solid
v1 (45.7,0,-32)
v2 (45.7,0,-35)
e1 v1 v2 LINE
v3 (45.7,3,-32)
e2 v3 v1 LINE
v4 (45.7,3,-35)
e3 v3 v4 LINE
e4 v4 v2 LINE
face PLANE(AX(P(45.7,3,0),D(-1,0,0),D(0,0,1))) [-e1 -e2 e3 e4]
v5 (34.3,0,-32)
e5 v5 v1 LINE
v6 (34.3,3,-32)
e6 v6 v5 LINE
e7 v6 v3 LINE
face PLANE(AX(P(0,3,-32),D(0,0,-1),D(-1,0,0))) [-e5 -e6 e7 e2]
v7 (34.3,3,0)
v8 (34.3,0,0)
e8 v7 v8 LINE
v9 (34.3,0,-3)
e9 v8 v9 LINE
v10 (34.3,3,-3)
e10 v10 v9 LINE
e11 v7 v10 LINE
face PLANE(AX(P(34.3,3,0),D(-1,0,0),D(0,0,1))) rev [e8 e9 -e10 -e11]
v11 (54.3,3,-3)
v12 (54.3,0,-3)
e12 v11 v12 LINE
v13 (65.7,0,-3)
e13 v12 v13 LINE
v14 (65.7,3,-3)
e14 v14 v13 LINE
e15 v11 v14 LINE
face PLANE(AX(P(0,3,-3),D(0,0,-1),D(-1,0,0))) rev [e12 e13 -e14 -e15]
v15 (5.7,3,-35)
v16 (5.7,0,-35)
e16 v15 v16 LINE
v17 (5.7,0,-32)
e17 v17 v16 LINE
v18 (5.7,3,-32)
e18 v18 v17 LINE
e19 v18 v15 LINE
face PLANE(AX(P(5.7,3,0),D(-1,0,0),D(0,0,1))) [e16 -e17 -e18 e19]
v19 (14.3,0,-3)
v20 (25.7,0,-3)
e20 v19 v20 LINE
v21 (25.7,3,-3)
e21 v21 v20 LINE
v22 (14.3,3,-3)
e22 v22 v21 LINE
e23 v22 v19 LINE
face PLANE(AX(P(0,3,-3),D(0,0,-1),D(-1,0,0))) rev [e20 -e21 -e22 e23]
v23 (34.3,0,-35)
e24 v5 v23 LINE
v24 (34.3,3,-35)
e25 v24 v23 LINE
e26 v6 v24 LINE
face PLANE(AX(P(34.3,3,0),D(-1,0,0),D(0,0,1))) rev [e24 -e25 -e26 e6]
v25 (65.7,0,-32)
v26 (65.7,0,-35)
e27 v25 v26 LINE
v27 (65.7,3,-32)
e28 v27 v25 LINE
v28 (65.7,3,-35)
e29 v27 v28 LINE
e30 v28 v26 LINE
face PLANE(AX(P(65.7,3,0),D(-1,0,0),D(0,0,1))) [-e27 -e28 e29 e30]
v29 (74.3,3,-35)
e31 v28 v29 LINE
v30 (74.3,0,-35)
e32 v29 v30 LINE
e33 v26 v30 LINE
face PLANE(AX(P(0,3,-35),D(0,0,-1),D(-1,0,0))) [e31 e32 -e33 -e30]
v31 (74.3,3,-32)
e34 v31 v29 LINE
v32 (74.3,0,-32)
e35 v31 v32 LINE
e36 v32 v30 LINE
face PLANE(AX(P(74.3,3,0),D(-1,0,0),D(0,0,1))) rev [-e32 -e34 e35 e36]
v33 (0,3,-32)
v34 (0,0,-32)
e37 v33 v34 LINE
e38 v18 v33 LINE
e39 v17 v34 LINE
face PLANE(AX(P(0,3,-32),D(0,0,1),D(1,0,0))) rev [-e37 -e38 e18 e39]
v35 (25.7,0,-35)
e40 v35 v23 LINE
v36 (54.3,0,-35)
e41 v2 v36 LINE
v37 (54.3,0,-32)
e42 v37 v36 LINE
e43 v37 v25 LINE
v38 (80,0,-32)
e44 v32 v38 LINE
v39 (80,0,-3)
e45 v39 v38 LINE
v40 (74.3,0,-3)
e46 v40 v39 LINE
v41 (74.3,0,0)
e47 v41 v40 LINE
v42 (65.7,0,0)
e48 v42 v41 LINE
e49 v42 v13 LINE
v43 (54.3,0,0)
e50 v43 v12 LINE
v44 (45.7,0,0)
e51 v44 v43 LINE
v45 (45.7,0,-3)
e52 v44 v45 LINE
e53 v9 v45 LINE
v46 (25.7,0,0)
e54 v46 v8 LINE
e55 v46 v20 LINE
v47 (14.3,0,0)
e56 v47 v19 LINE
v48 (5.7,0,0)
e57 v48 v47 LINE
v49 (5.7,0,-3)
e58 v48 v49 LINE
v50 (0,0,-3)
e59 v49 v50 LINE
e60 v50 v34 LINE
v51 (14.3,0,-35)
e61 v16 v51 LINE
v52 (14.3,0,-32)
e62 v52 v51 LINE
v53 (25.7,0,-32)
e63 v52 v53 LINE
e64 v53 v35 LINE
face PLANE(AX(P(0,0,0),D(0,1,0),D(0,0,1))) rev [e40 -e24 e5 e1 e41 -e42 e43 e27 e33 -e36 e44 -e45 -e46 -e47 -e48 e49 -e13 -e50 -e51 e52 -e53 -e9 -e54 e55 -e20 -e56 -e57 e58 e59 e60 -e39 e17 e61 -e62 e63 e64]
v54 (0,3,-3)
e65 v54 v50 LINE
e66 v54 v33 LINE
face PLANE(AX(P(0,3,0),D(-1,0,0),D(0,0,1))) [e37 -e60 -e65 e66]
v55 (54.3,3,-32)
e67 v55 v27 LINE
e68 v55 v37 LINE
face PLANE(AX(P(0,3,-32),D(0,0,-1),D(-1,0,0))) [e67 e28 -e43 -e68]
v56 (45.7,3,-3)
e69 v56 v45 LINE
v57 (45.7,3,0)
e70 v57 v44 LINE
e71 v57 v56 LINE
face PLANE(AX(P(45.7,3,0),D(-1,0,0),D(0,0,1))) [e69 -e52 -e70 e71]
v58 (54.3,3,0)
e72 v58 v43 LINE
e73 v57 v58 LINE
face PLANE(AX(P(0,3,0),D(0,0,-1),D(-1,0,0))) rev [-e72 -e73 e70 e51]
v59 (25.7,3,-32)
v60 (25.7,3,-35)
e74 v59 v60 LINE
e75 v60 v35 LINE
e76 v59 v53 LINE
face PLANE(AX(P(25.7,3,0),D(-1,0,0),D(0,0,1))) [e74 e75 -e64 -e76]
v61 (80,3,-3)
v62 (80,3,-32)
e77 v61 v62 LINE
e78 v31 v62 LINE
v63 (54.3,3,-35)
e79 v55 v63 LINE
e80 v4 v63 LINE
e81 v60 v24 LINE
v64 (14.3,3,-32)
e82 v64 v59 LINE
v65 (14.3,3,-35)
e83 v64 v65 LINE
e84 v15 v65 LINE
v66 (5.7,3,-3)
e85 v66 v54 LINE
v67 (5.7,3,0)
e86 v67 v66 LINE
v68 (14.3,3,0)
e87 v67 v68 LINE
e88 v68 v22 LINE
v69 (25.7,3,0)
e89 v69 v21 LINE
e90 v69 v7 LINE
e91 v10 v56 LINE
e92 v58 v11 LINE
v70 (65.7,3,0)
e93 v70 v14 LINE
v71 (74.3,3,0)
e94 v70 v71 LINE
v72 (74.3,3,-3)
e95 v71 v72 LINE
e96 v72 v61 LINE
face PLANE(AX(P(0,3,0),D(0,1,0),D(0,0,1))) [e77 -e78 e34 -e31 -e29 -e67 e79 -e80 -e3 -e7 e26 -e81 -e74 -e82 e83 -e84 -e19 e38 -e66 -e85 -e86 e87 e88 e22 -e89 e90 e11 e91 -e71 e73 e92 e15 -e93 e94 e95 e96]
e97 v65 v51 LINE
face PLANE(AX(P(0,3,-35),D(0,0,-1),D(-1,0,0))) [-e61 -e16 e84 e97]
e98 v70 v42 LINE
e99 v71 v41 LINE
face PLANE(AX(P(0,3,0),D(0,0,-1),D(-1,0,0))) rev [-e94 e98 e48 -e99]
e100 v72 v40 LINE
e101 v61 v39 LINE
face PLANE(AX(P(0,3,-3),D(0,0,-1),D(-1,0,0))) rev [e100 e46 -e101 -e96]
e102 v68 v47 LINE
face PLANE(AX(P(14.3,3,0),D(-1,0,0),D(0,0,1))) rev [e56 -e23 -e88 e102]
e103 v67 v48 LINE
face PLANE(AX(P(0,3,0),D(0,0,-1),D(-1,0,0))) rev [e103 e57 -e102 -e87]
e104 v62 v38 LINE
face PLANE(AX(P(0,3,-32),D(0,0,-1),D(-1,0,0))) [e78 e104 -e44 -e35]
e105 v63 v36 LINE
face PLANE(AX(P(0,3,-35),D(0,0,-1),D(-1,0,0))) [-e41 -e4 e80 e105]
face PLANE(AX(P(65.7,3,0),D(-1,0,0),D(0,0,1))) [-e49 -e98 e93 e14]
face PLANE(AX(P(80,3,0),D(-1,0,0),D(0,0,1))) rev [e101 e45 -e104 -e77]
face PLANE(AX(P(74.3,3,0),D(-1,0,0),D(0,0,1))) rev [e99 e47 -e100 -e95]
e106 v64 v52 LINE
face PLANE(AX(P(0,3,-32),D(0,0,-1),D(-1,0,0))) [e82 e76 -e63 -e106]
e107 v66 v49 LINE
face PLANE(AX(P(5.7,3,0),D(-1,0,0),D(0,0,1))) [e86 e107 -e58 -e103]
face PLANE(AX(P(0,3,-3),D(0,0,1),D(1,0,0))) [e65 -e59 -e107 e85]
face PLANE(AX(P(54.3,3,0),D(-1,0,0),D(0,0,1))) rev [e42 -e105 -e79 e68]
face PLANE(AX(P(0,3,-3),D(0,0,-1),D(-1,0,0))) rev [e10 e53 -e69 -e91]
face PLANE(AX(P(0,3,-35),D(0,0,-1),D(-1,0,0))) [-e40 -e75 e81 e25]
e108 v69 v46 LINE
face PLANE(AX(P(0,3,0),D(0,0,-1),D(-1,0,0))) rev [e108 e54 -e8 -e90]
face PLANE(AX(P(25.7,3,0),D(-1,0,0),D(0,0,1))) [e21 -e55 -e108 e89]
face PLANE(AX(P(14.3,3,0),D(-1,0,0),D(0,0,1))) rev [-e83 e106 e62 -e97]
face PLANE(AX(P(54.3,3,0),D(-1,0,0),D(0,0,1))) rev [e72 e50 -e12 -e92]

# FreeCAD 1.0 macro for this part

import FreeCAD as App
import Part
import Sketcher

V = App.Vector


def add_polygon(sketch, points):
    """Adds a closed chain of lines whose ends are joined by coincident constraints."""
    first, n = sketch.GeometryCount, len(points)
    for a, b in zip(points, points[1:] + points[:1]):
        sketch.addGeometry(Part.LineSegment(App.Vector(*a, 0), App.Vector(*b, 0)), False)
    for i in range(n):
        sketch.addConstraint(Sketcher.Constraint("Coincident", first + i, 2, first + (i + 1) % n, 1))

doc = App.newDocument("Part")
params = doc.addObject("Spreadsheet::Sheet", "Params")
for row, (alias, value) in enumerate([
    ("sketch1_height", "29 mm"),
    ("sketch1_height2", "3 mm"),
    ("sketch1_width", "5.7 mm"),
    ("sketch1_width2", "8.6 mm"),
    ("sketch1_width3", "11.4 mm"),
    ("pad1_length", "3 mm"),
], start=1):
    params.set(f"A{row}", alias)
    params.set(f"B{row}", "=" + value)
    params.setAlias(f"B{row}", alias)

body = doc.addObject("PartDesign::Body", "Body")

# Sketch on XZ plane
sketch1 = doc.addObject("Sketcher::SketchObject", "Sketch")
body.addObject(sketch1)
sketch1.AttachmentSupport = (doc.XZ_Plane, [""])
sketch1.MapMode = "FlatFace"
add_polygon(sketch1, [(0, -32), (0, -3), (5.7, -3), (5.7, 0), (14.3, 0), (14.3, -3), (25.7, -3), (25.7, 0), (34.3, 0), (34.3, -3), (45.7, -3), (45.7, 0), (54.3, 0), (54.3, -3), (65.7, -3), (65.7, 0), (74.3, 0), (74.3, -3), (80, -3), (80, -32), (74.3, -32), (74.3, -35), (65.7, -35), (65.7, -32), (54.3, -32), (54.3, -35), (45.7, -35), (45.7, -32), (34.3, -32), (34.3, -35), (25.7, -35), (25.7, -32), (14.3, -32), (14.3, -35), (5.7, -35), (5.7, -32)])  # lines 0-35
sketch1.addConstraint([
    Sketcher.Constraint("Vertical", 0),
    Sketcher.Constraint("Horizontal", 1),
    Sketcher.Constraint("Vertical", 2),
    Sketcher.Constraint("Horizontal", 3),
    Sketcher.Constraint("Vertical", 4),
    Sketcher.Constraint("Horizontal", 5),
    Sketcher.Constraint("Vertical", 6),
    Sketcher.Constraint("Horizontal", 7),
    Sketcher.Constraint("Vertical", 8),
    Sketcher.Constraint("Horizontal", 9),
    Sketcher.Constraint("Vertical", 10),
    Sketcher.Constraint("Horizontal", 11),
    Sketcher.Constraint("Vertical", 12),
    Sketcher.Constraint("Horizontal", 13),
    Sketcher.Constraint("Vertical", 14),
    Sketcher.Constraint("Horizontal", 15),
    Sketcher.Constraint("Vertical", 16),
    Sketcher.Constraint("Horizontal", 17),
    Sketcher.Constraint("Vertical", 18),
    Sketcher.Constraint("Horizontal", 19),
    Sketcher.Constraint("Vertical", 20),
    Sketcher.Constraint("Horizontal", 21),
    Sketcher.Constraint("Vertical", 22),
    Sketcher.Constraint("Horizontal", 23),
    Sketcher.Constraint("Vertical", 24),
    Sketcher.Constraint("Horizontal", 25),
    Sketcher.Constraint("Vertical", 26),
    Sketcher.Constraint("Horizontal", 27),
    Sketcher.Constraint("Vertical", 28),
    Sketcher.Constraint("Horizontal", 29),
    Sketcher.Constraint("Vertical", 30),
    Sketcher.Constraint("Horizontal", 31),
    Sketcher.Constraint("Vertical", 32),
    Sketcher.Constraint("Horizontal", 33),
    Sketcher.Constraint("Vertical", 34),
    Sketcher.Constraint("Horizontal", 35),
    Sketcher.Constraint("PointOnObject", 0, 2, -2),
    Sketcher.Constraint("PointOnObject", 2, 2, -1),
    Sketcher.Constraint("PointOnObject", 6, 2, -1),
    Sketcher.Constraint("PointOnObject", 10, 2, -1),
    Sketcher.Constraint("PointOnObject", 14, 2, -1),
    Sketcher.Constraint("Horizontal", 1, 2, 4, 2),
    Sketcher.Constraint("Horizontal", 5, 2, 8, 2),
    Sketcher.Constraint("Horizontal", 9, 2, 12, 2),
    Sketcher.Constraint("Horizontal", 13, 2, 16, 2),
    Sketcher.Constraint("Horizontal", 19, 2, 22, 2),
    Sketcher.Constraint("Horizontal", 21, 2, 24, 2),
    Sketcher.Constraint("Horizontal", 23, 2, 26, 2),
    Sketcher.Constraint("Horizontal", 25, 2, 28, 2),
    Sketcher.Constraint("Horizontal", 27, 2, 30, 2),
    Sketcher.Constraint("Horizontal", 29, 2, 32, 2),
    Sketcher.Constraint("Horizontal", 31, 2, 34, 2),
    Sketcher.Constraint("Vertical", 16, 2, 19, 2),
    Sketcher.Constraint("Vertical", 14, 2, 21, 2),
    Sketcher.Constraint("Vertical", 12, 2, 23, 2),
    Sketcher.Constraint("Vertical", 10, 2, 25, 2),
    Sketcher.Constraint("Vertical", 8, 2, 27, 2),
    Sketcher.Constraint("Vertical", 6, 2, 29, 2),
    Sketcher.Constraint("Vertical", 4, 2, 31, 2),
    Sketcher.Constraint("Vertical", 2, 2, 33, 2),
    Sketcher.Constraint("Equal", 3, 7),
    Sketcher.Constraint("Equal", 5, 9),
    Sketcher.Constraint("Equal", 7, 11),
    Sketcher.Constraint("Equal", 9, 13),
    Sketcher.Constraint("Equal", 11, 15),
    Sketcher.Constraint("Equal", 1, 17),
    Sketcher.Constraint("Equal", 16, 20),
    Sketcher.Constraint("DistanceY", 0, 1, 0, 2, 29.0),
    Sketcher.Constraint("DistanceY", 2, 1, 2, 2, 3.0),
    Sketcher.Constraint("DistanceX", 1, 1, 1, 2, 5.7),
    Sketcher.Constraint("DistanceX", 3, 1, 3, 2, 8.6),
    Sketcher.Constraint("DistanceX", 5, 1, 5, 2, 11.4),
])
sketch1.setExpression("Constraints[103]", "Params.sketch1_height")
sketch1.setExpression("Constraints[104]", "Params.sketch1_height2")
sketch1.setExpression("Constraints[105]", "Params.sketch1_width")
sketch1.setExpression("Constraints[106]", "Params.sketch1_width2")
sketch1.setExpression("Constraints[107]", "Params.sketch1_width3")
pad1 = doc.addObject("PartDesign::Pad", "Pad")
body.addObject(pad1)
pad1.Profile = sketch1
pad1.setExpression("Length", "Params.pad1_length")
pad1.Reversed = True

doc.recompute()
